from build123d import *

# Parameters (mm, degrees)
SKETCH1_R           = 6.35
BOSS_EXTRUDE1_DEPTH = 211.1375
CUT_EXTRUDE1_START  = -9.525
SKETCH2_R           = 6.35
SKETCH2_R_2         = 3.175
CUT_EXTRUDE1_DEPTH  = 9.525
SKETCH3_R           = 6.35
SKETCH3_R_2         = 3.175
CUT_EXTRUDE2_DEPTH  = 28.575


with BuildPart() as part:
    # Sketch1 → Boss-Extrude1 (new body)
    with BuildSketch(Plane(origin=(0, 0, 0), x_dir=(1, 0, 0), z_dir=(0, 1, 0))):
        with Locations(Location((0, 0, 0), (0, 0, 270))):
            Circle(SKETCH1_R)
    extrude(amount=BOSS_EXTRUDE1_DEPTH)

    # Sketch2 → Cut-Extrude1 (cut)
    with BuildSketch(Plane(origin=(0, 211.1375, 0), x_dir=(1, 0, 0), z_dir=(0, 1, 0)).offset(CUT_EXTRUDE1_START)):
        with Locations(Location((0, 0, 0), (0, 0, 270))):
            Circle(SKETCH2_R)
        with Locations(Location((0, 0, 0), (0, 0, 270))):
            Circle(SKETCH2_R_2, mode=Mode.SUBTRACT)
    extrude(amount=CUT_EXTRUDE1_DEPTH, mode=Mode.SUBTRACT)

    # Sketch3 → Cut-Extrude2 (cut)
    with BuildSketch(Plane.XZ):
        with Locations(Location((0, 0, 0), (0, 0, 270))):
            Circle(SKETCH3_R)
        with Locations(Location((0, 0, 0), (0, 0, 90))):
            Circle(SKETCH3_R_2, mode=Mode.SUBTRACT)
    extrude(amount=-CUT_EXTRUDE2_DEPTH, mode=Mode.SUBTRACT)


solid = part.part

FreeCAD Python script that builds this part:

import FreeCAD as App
import Part
import Sketcher
from FreeCAD import Vector
Q = App.Units.Quantity

doc = App.newDocument("Part")
params = doc.addObject("Spreadsheet::Sheet", "Params")
for row, (alias, value) in enumerate([
    ("sketch1_diameter", "0.5 in"),
    ("pad1_length", "8.3125 in"),
    ("sketch2_diameter", "0.5 in"),
    ("sketch2_diameter2", "0.25 in"),
    ("pocket1_length", "0.375 in"),
    ("sketch3_diameter", "0.5 in"),
    ("sketch3_diameter2", "0.25 in"),
    ("pocket2_length", "1.125 in"),
], start=1):
    params.set(f"A{row}", alias)
    params.set(f"B{row}", "=" + value)
    params.setAlias(f"B{row}", alias)

body = doc.addObject("PartDesign::Body", "Body")

# Sketch on XZ plane
sketch1 = body.newObject("Sketcher::SketchObject", "Sketch")
sketch1.AttachmentSupport = (doc.getObject("XZ_Plane"), [""])
sketch1.MapMode = "FlatFace"
sketch1.addGeometry(Part.Circle(Vector(0, 0, 0), Vector(0, 0, 1), 6), False)
sketch1.addConstraint(Sketcher.Constraint("Coincident", 0, 3, -1, 1))
sketch1.addConstraint(Sketcher.Constraint("Diameter", 0, Q("0.5 in")))
sketch1.setExpression("Constraints[1]", "Params.sketch1_diameter")
pad1 = body.newObject("PartDesign::Pad", "Pad")
pad1.Profile = sketch1
pad1.setExpression("Length", "Params.pad1_length")
pad1.Reversed = True

# Sketch on XZ plane
sketch2 = body.newObject("Sketcher::SketchObject", "Sketch001")
sketch2.AttachmentSupport = (doc.getObject("XZ_Plane"), [""])
sketch2.MapMode = "FlatFace"
sketch2.AttachmentOffset = App.Placement(Vector(0, 0, -7.9375 * 25.4), App.Rotation())
sketch2.addGeometry(Part.Circle(Vector(0, 0, 0), Vector(0, 0, 1), 6.3), False)
sketch2.addGeometry(Part.Circle(Vector(0, 0, 0), Vector(0, 0, 1), 3.2), False)
sketch2.addConstraint(Sketcher.Constraint("Coincident", 0, 3, -1, 1))
sketch2.addConstraint(Sketcher.Constraint("Coincident", 1, 3, -1, 1))
sketch2.addConstraint(Sketcher.Constraint("Diameter", 0, Q("0.5 in")))
sketch2.addConstraint(Sketcher.Constraint("Diameter", 1, Q("0.25 in")))
sketch2.setExpression("Constraints[2]", "Params.sketch2_diameter")
sketch2.setExpression("Constraints[3]", "Params.sketch2_diameter2")
pocket1 = body.newObject("PartDesign::Pocket", "Pocket")
pocket1.Profile = sketch2
pocket1.setExpression("Length", "Params.pocket1_length")

# Sketch on XZ plane
sketch3 = body.newObject("Sketcher::SketchObject", "Sketch002")
sketch3.AttachmentSupport = (doc.getObject("XZ_Plane"), [""])
sketch3.MapMode = "FlatFace"
sketch3.addGeometry(Part.Circle(Vector(0, 0, 0), Vector(0, 0, 1), 6.3), False)
sketch3.addGeometry(Part.Circle(Vector(0, 0, 0), Vector(0, 0, 1), 3.2), False)
sketch3.addConstraint(Sketcher.Constraint("Coincident", 0, 3, -1, 1))
sketch3.addConstraint(Sketcher.Constraint("Coincident", 1, 3, -1, 1))
sketch3.addConstraint(Sketcher.Constraint("Diameter", 0, Q("0.5 in")))
sketch3.addConstraint(Sketcher.Constraint("Diameter", 1, Q("0.25 in")))
sketch3.setExpression("Constraints[2]", "Params.sketch3_diameter")
sketch3.setExpression("Constraints[3]", "Params.sketch3_diameter2")
pocket2 = body.newObject("PartDesign::Pocket", "Pocket001")
pocket2.Profile = sketch3
pocket2.setExpression("Length", "Params.pocket2_length")

doc.recompute()
